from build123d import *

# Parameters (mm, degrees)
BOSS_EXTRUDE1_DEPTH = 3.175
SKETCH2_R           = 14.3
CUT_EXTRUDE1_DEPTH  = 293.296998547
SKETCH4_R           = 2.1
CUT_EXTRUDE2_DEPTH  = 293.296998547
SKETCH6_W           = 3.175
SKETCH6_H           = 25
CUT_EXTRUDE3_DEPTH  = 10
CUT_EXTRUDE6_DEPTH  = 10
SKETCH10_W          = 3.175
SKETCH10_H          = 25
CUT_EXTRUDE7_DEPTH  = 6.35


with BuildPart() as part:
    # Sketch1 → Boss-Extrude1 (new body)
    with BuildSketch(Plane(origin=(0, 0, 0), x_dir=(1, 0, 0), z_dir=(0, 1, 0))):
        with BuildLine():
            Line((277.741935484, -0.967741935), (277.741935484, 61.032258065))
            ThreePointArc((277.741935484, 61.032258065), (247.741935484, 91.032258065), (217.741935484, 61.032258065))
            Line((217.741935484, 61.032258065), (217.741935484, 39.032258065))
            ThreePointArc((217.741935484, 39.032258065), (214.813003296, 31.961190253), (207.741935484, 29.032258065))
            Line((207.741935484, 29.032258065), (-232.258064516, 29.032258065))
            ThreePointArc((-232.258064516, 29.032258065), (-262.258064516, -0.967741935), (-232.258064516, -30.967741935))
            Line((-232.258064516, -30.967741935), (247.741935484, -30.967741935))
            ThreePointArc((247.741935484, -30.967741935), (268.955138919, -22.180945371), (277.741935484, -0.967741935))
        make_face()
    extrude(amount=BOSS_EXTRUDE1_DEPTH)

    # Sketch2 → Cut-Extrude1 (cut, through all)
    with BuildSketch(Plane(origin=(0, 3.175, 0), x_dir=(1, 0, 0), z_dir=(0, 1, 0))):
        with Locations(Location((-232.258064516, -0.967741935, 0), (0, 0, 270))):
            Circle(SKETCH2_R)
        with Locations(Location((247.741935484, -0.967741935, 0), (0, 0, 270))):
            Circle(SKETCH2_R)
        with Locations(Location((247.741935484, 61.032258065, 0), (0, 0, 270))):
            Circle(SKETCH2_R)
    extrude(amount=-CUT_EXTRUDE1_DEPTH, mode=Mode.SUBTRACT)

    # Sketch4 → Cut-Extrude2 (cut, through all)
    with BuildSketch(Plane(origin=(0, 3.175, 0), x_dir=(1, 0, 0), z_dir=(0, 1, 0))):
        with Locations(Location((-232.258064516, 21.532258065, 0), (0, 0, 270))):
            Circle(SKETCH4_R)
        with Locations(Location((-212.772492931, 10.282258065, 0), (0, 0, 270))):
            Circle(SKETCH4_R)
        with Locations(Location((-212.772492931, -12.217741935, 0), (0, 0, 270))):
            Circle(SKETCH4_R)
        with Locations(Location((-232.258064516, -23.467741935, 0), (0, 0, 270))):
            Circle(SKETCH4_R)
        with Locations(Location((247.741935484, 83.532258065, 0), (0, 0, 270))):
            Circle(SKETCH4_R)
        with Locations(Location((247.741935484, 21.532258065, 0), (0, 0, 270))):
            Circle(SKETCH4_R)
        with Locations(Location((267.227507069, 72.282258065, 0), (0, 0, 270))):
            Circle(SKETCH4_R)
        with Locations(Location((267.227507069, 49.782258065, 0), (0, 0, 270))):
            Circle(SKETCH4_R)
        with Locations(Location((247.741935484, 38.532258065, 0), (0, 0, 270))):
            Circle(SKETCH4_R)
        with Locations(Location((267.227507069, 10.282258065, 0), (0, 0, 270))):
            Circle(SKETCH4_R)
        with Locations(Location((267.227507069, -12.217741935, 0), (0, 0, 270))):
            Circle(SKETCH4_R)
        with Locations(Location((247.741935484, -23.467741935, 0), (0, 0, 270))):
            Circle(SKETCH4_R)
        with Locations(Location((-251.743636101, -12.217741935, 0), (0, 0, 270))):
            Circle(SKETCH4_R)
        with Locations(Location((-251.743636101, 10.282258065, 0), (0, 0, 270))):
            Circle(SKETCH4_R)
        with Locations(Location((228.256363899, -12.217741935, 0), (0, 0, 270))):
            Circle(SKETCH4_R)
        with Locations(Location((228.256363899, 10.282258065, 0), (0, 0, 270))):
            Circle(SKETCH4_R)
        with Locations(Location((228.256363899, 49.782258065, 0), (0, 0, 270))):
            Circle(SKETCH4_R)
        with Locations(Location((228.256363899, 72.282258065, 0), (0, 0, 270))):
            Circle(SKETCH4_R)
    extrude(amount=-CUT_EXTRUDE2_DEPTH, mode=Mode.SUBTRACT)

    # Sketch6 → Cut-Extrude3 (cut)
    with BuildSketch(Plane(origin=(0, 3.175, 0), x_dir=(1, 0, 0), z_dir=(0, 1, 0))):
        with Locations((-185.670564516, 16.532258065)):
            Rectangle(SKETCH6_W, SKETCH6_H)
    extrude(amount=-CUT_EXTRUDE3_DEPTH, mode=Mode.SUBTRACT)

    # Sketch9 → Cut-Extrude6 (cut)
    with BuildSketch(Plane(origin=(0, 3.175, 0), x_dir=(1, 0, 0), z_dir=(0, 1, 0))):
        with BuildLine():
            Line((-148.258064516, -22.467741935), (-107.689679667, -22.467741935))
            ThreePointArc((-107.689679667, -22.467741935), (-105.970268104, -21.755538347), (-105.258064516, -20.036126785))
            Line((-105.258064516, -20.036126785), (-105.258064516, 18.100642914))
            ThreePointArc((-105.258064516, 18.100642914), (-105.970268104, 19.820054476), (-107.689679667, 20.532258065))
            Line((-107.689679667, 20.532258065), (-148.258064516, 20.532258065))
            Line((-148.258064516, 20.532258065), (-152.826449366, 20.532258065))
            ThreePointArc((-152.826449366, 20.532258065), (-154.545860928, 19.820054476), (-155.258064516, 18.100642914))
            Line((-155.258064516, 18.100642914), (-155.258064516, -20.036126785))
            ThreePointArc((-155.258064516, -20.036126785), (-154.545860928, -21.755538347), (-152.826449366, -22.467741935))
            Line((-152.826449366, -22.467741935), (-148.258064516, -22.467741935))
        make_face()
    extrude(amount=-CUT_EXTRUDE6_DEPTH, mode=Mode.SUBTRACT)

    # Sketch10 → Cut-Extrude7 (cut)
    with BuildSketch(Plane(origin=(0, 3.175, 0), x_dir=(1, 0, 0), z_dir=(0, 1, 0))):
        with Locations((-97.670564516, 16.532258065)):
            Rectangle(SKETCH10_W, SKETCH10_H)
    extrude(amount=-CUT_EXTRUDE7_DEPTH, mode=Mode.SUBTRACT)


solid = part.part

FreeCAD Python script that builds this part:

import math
import FreeCAD as App
import Part
import Sketcher

V = App.Vector


def add_polygon(sketch, points):
    """Adds a closed chain of lines whose ends are joined by coincident constraints."""
    first, n = sketch.GeometryCount, len(points)
    for a, b in zip(points, points[1:] + points[:1]):
        sketch.addGeometry(Part.LineSegment(App.Vector(*a, 0), App.Vector(*b, 0)), False)
    for i in range(n):
        sketch.addConstraint(Sketcher.Constraint("Coincident", first + i, 2, first + (i + 1) % n, 1))

doc = App.newDocument("Part")
body = doc.addObject("PartDesign::Body", "Body")

sketch1 = doc.addObject("Sketcher::SketchObject", "Sketch")
body.addObject(sketch1)
sketch1.AttachmentSupport = (doc.XZ_Plane, [""])
sketch1.MapMode = "FlatFace"
sketch1.addGeometry([
    Part.LineSegment(V(277.741935, 0.967742, 0), V(277.741935, -61.032258, 0)),
    Part.ArcOfCircle(Part.Circle(V(247.741935, -61.032258, 0), V(0, 0, 1), 30), math.radians(180), math.radians(360)),
    Part.LineSegment(V(217.741935, -61.032258, 0), V(217.741935, -39.032258, 0)),
    Part.ArcOfCircle(Part.Circle(V(207.741935, -39.032258, 0), V(0, 0, 1), 10), math.radians(0), math.radians(90)),
    Part.LineSegment(V(207.741935, -29.032258, 0), V(-232.258065, -29.032258, 0)),
    Part.ArcOfCircle(Part.Circle(V(-232.258065, 0.967742, 0), V(0, 0, 1), 30), math.radians(90), math.radians(270)),
    Part.LineSegment(V(-232.258065, 30.967742, 0), V(247.741935, 30.967742, 0)),
    Part.ArcOfCircle(Part.Circle(V(247.741935, 0.967742, 0), V(0, 0, 1), 30), math.radians(0), math.radians(90)),
], False)
sketch1.addConstraint([
    Sketcher.Constraint("Tangent", 0, 2, 1, 2),
    Sketcher.Constraint("Tangent", 1, 1, 2, 1),
    Sketcher.Constraint("Tangent", 2, 2, 3, 1),
    Sketcher.Constraint("Tangent", 3, 2, 4, 1),
    Sketcher.Constraint("Tangent", 4, 2, 5, 2),
    Sketcher.Constraint("Tangent", 5, 1, 6, 1),
    Sketcher.Constraint("Tangent", 6, 2, 7, 2),
    Sketcher.Constraint("Tangent", 7, 1, 0, 1),
    Sketcher.Constraint("Vertical", 0),
    Sketcher.Constraint("Vertical", 2),
    Sketcher.Constraint("Horizontal", 4),
    Sketcher.Constraint("Horizontal", 6),
    Sketcher.Constraint("Equal", 1, 5),
    Sketcher.Constraint("Equal", 5, 7),
    Sketcher.Constraint("Radius", 1, 30.0),
    Sketcher.Constraint("Radius", 3, 10.0),
    Sketcher.Constraint("DistanceX", 4, 2, 4, 1, 440.0),
    Sketcher.Constraint("DistanceY", 0, 2, 0, 1, 62.0),
    Sketcher.Constraint("DistanceY", 1, 3, -1, 1, 61.032258),
    Sketcher.Constraint("DistanceX", -1, 1, 1, 3, 247.741935),
])
pad1 = doc.addObject("PartDesign::Pad", "Pad")
body.addObject(pad1)
pad1.Profile = sketch1
pad1.Length = 3.175
pad1.Reversed = True

sketch2 = doc.addObject("Sketcher::SketchObject", "Sketch001")
body.addObject(sketch2)
sketch2.AttachmentSupport = (doc.XZ_Plane, [""])
sketch2.MapMode = "FlatFace"
sketch2.AttachmentOffset = App.Placement(V(0, 0, -3.175), App.Rotation())
sketch2.addGeometry([
    Part.Circle(V(-232.258065, 0.967742, 0), V(0, 0, 1), 14.3),
    Part.Circle(V(247.741935, 0.967742, 0), V(0, 0, 1), 14.3),
    Part.Circle(V(247.741935, -61.032258, 0), V(0, 0, 1), 14.3),
], False)
sketch2.addConstraint([
    Sketcher.Constraint("Equal", 0, 1),
    Sketcher.Constraint("Equal", 1, 2),
    Sketcher.Constraint("Horizontal", 0, 3, 1, 3),
    Sketcher.Constraint("Vertical", 1, 3, 2, 3),
    Sketcher.Constraint("Diameter", 0, 28.6),
    Sketcher.Constraint("DistanceX", 0, 3, 1, 3, 480.0),
    Sketcher.Constraint("DistanceY", 2, 3, 1, 3, 62.0),
    Sketcher.Constraint("DistanceY", -1, 1, 0, 3, 0.967742),
    Sketcher.Constraint("DistanceX", 0, 3, -1, 1, 232.258065),
])
pocket1 = doc.addObject("PartDesign::Pocket", "Pocket")
body.addObject(pocket1)
pocket1.Profile = sketch2
pocket1.Type = "ThroughAll"
pocket1.Reversed = True

sketch3 = doc.addObject("Sketcher::SketchObject", "Sketch002")
body.addObject(sketch3)
sketch3.AttachmentSupport = (doc.XZ_Plane, [""])
sketch3.MapMode = "FlatFace"
sketch3.AttachmentOffset = App.Placement(V(0, 0, -3.175), App.Rotation())
sketch3.addGeometry([
    Part.Circle(V(-232.258065, -21.532258, 0), V(0, 0, 1), 2.1),
    Part.Circle(V(-212.772493, -10.282258, 0), V(0, 0, 1), 2.1),
    Part.Circle(V(-212.772493, 12.217742, 0), V(0, 0, 1), 2.1),
    Part.Circle(V(-232.258065, 23.467742, 0), V(0, 0, 1), 2.1),
    Part.Circle(V(247.741935, -83.532258, 0), V(0, 0, 1), 2.1),
    Part.Circle(V(247.741935, -21.532258, 0), V(0, 0, 1), 2.1),
    Part.Circle(V(267.227507, -72.282258, 0), V(0, 0, 1), 2.1),
    Part.Circle(V(267.227507, -49.782258, 0), V(0, 0, 1), 2.1),
    Part.Circle(V(247.741935, -38.532258, 0), V(0, 0, 1), 2.1),
    Part.Circle(V(267.227507, -10.282258, 0), V(0, 0, 1), 2.1),
    Part.Circle(V(267.227507, 12.217742, 0), V(0, 0, 1), 2.1),
    Part.Circle(V(247.741935, 23.467742, 0), V(0, 0, 1), 2.1),
    Part.Circle(V(-251.743636, 12.217742, 0), V(0, 0, 1), 2.1),
    Part.Circle(V(-251.743636, -10.282258, 0), V(0, 0, 1), 2.1),
    Part.Circle(V(228.256364, 12.217742, 0), V(0, 0, 1), 2.1),
    Part.Circle(V(228.256364, -10.282258, 0), V(0, 0, 1), 2.1),
    Part.Circle(V(228.256364, -49.782258, 0), V(0, 0, 1), 2.1),
    Part.Circle(V(228.256364, -72.282258, 0), V(0, 0, 1), 2.1),
], False)
sketch3.addConstraint([
    Sketcher.Constraint("Equal", 0, 1),
    Sketcher.Constraint("Equal", 1, 2),
    Sketcher.Constraint("Equal", 2, 3),
    Sketcher.Constraint("Equal", 3, 4),
    Sketcher.Constraint("Equal", 4, 5),
    Sketcher.Constraint("Equal", 5, 6),
    Sketcher.Constraint("Equal", 6, 7),
    Sketcher.Constraint("Equal", 7, 8),
    Sketcher.Constraint("Equal", 8, 9),
    Sketcher.Constraint("Equal", 9, 10),
    Sketcher.Constraint("Equal", 10, 11),
    Sketcher.Constraint("Equal", 11, 12),
    Sketcher.Constraint("Equal", 12, 13),
    Sketcher.Constraint("Equal", 13, 14),
    Sketcher.Constraint("Equal", 14, 15),
    Sketcher.Constraint("Equal", 15, 16),
    Sketcher.Constraint("Equal", 16, 17),
    Sketcher.Constraint("Horizontal", 0, 3, 5, 3),
    Sketcher.Constraint("Horizontal", 1, 3, 9, 3),
    Sketcher.Constraint("Horizontal", 2, 3, 10, 3),
    Sketcher.Constraint("Horizontal", 3, 3, 11, 3),
    Sketcher.Constraint("Horizontal", 10, 3, 12, 3),
    Sketcher.Constraint("Horizontal", 9, 3, 13, 3),
    Sketcher.Constraint("Horizontal", 12, 3, 14, 3),
    Sketcher.Constraint("Horizontal", 13, 3, 15, 3),
    Sketcher.Constraint("Horizontal", 7, 3, 16, 3),
    Sketcher.Constraint("Horizontal", 6, 3, 17, 3),
    Sketcher.Constraint("Vertical", 1, 3, 2, 3),
    Sketcher.Constraint("Vertical", 0, 3, 3, 3),
    Sketcher.Constraint("Vertical", 4, 3, 5, 3),
    Sketcher.Constraint("Vertical", 6, 3, 7, 3),
    Sketcher.Constraint("Vertical", 5, 3, 8, 3),
    Sketcher.Constraint("Vertical", 7, 3, 9, 3),
    Sketcher.Constraint("Vertical", 9, 3, 10, 3),
    Sketcher.Constraint("Vertical", 8, 3, 11, 3),
    Sketcher.Constraint("Vertical", 12, 3, 13, 3),
    Sketcher.Constraint("Vertical", 14, 3, 15, 3),
    Sketcher.Constraint("Vertical", 15, 3, 16, 3),
    Sketcher.Constraint("Vertical", 16, 3, 17, 3),
    Sketcher.Constraint("Diameter", 0, 4.2),
    Sketcher.Constraint("DistanceY", 0, 3, 3, 3, 45.0),
    Sketcher.Constraint("DistanceX", 0, 3, 4, 3, 480.0),
    Sketcher.Constraint("DistanceY", 4, 3, 0, 3, 62.0),
    Sketcher.Constraint("DistanceX", 1, 3, 6, 3, 480.0),
    Sketcher.Constraint("DistanceY", 6, 3, 1, 3, 62.0),
    Sketcher.Constraint("DistanceY", 7, 3, 2, 3, 62.0),
    Sketcher.Constraint("DistanceY", 8, 3, 5, 3, 17.0),
    Sketcher.Constraint("DistanceY", 1, 3, 2, 3, 22.5),
    Sketcher.Constraint("DistanceY", 0, 3, 1, 3, 11.25),
    Sketcher.Constraint("DistanceY", 0, 3, -1, 1, 21.532258),
    Sketcher.Constraint("DistanceX", 0, 3, 1, 3, 19.485572),
    Sketcher.Constraint("DistanceX", 12, 3, 3, 3, 19.485572),
    Sketcher.Constraint("DistanceX", 14, 3, 11, 3, 19.485572),
    Sketcher.Constraint("DistanceX", 0, 3, -1, 1, 232.258065),
])
pocket2 = doc.addObject("PartDesign::Pocket", "Pocket001")
body.addObject(pocket2)
pocket2.Profile = sketch3
pocket2.Type = "ThroughAll"
pocket2.Reversed = True

sketch4 = doc.addObject("Sketcher::SketchObject", "Sketch003")
body.addObject(sketch4)
sketch4.AttachmentSupport = (doc.XZ_Plane, [""])
sketch4.MapMode = "FlatFace"
sketch4.AttachmentOffset = App.Placement(V(0, 0, -3.175), App.Rotation())
add_polygon(sketch4, [(-187.258065, -29.032258), (-187.258065, -4.032258), (-184.083065, -4.032258), (-184.083065, -29.032258)])
sketch4.addConstraint([
    Sketcher.Constraint("Vertical", 0),
    Sketcher.Constraint("Horizontal", 1),
    Sketcher.Constraint("Vertical", 2),
    Sketcher.Constraint("Horizontal", 3),
    Sketcher.Constraint("DistanceY", 0, 1, 0, 2, 25.0),
    Sketcher.Constraint("DistanceX", 1, 1, 1, 2, 3.175),
    Sketcher.Constraint("DistanceY", 0, 2, -1, 1, 4.032258),
    Sketcher.Constraint("DistanceX", 0, 2, -1, 1, 187.258065),
])
pocket3 = doc.addObject("PartDesign::Pocket", "Pocket002")
body.addObject(pocket3)
pocket3.Profile = sketch4
pocket3.Length = 10
pocket3.Reversed = True

sketch5 = doc.addObject("Sketcher::SketchObject", "Sketch004")
body.addObject(sketch5)
sketch5.AttachmentSupport = (doc.XZ_Plane, [""])
sketch5.MapMode = "FlatFace"
sketch5.AttachmentOffset = App.Placement(V(0, 0, -3.175), App.Rotation())
sketch5.addGeometry([
    Part.ArcOfCircle(Part.Circle(V(-107.68968, 20.036127, 0), V(0, 0, 1), 2.431615), math.radians(0), math.radians(90)),
    Part.LineSegment(V(-105.258065, 20.036127, 0), V(-105.258065, -18.100643, 0)),
    Part.ArcOfCircle(Part.Circle(V(-107.68968, -18.100643, 0), V(0, 0, 1), 2.431615), math.radians(-90), math.radians(0)),
    Part.LineSegment(V(-107.68968, -20.532258, 0), V(-152.826449, -20.532258, 0)),
    Part.ArcOfCircle(Part.Circle(V(-152.826449, -18.100643, 0), V(0, 0, 1), 2.431615), math.radians(180), math.radians(270)),
    Part.LineSegment(V(-155.258065, -18.100643, 0), V(-155.258065, 20.036127, 0)),
    Part.ArcOfCircle(Part.Circle(V(-152.826449, 20.036127, 0), V(0, 0, 1), 2.431615), math.radians(90), math.radians(180)),
    Part.LineSegment(V(-152.826449, 22.467742, 0), V(-107.68968, 22.467742, 0)),
], False)
sketch5.addConstraint([
    Sketcher.Constraint("Tangent", 0, 1, 1, 1),
    Sketcher.Constraint("Tangent", 1, 2, 2, 2),
    Sketcher.Constraint("Tangent", 2, 1, 3, 1),
    Sketcher.Constraint("Tangent", 3, 2, 4, 2),
    Sketcher.Constraint("Tangent", 4, 1, 5, 1),
    Sketcher.Constraint("Tangent", 5, 2, 6, 2),
    Sketcher.Constraint("Tangent", 6, 1, 7, 1),
    Sketcher.Constraint("Tangent", 7, 2, 0, 2),
    Sketcher.Constraint("Vertical", 1),
    Sketcher.Constraint("Horizontal", 3),
    Sketcher.Constraint("Vertical", 5),
    Sketcher.Constraint("Horizontal", 7),
    Sketcher.Constraint("Equal", 0, 2),
    Sketcher.Constraint("Equal", 2, 4),
    Sketcher.Constraint("Equal", 4, 6),
    Sketcher.Constraint("DistanceY", 3, 2, 6, 1, 43.0),
    Sketcher.Constraint("Radius", 0, 2.431615),
    Sketcher.Constraint("DistanceX", 3, 2, 3, 1, 45.13677),
    Sketcher.Constraint("DistanceX", 0, 3, -1, 1, 107.68968),
    Sketcher.Constraint("DistanceY", 2, 1, -1, 1, 20.532258),
])
pocket4 = doc.addObject("PartDesign::Pocket", "Pocket003")
body.addObject(pocket4)
pocket4.Profile = sketch5
pocket4.Length = 10
pocket4.Reversed = True

sketch6 = doc.addObject("Sketcher::SketchObject", "Sketch005")
body.addObject(sketch6)
sketch6.AttachmentSupport = (doc.XZ_Plane, [""])
sketch6.MapMode = "FlatFace"
sketch6.AttachmentOffset = App.Placement(V(0, 0, -3.175), App.Rotation())
add_polygon(sketch6, [(-99.258065, -29.032258), (-99.258065, -4.032258), (-96.083065, -4.032258), (-96.083065, -29.032258)])
sketch6.addConstraint([
    Sketcher.Constraint("Vertical", 0),
    Sketcher.Constraint("Horizontal", 1),
    Sketcher.Constraint("Vertical", 2),
    Sketcher.Constraint("Horizontal", 3),
    Sketcher.Constraint("DistanceY", 0, 1, 0, 2, 25.0),
    Sketcher.Constraint("DistanceX", 1, 1, 1, 2, 3.175),
    Sketcher.Constraint("DistanceY", 0, 2, -1, 1, 4.032258),
    Sketcher.Constraint("DistanceX", 0, 2, -1, 1, 99.258065),
])
pocket5 = doc.addObject("PartDesign::Pocket", "Pocket004")
body.addObject(pocket5)
pocket5.Profile = sketch6
pocket5.Length = 6.35
pocket5.Reversed = True

doc.recompute()
